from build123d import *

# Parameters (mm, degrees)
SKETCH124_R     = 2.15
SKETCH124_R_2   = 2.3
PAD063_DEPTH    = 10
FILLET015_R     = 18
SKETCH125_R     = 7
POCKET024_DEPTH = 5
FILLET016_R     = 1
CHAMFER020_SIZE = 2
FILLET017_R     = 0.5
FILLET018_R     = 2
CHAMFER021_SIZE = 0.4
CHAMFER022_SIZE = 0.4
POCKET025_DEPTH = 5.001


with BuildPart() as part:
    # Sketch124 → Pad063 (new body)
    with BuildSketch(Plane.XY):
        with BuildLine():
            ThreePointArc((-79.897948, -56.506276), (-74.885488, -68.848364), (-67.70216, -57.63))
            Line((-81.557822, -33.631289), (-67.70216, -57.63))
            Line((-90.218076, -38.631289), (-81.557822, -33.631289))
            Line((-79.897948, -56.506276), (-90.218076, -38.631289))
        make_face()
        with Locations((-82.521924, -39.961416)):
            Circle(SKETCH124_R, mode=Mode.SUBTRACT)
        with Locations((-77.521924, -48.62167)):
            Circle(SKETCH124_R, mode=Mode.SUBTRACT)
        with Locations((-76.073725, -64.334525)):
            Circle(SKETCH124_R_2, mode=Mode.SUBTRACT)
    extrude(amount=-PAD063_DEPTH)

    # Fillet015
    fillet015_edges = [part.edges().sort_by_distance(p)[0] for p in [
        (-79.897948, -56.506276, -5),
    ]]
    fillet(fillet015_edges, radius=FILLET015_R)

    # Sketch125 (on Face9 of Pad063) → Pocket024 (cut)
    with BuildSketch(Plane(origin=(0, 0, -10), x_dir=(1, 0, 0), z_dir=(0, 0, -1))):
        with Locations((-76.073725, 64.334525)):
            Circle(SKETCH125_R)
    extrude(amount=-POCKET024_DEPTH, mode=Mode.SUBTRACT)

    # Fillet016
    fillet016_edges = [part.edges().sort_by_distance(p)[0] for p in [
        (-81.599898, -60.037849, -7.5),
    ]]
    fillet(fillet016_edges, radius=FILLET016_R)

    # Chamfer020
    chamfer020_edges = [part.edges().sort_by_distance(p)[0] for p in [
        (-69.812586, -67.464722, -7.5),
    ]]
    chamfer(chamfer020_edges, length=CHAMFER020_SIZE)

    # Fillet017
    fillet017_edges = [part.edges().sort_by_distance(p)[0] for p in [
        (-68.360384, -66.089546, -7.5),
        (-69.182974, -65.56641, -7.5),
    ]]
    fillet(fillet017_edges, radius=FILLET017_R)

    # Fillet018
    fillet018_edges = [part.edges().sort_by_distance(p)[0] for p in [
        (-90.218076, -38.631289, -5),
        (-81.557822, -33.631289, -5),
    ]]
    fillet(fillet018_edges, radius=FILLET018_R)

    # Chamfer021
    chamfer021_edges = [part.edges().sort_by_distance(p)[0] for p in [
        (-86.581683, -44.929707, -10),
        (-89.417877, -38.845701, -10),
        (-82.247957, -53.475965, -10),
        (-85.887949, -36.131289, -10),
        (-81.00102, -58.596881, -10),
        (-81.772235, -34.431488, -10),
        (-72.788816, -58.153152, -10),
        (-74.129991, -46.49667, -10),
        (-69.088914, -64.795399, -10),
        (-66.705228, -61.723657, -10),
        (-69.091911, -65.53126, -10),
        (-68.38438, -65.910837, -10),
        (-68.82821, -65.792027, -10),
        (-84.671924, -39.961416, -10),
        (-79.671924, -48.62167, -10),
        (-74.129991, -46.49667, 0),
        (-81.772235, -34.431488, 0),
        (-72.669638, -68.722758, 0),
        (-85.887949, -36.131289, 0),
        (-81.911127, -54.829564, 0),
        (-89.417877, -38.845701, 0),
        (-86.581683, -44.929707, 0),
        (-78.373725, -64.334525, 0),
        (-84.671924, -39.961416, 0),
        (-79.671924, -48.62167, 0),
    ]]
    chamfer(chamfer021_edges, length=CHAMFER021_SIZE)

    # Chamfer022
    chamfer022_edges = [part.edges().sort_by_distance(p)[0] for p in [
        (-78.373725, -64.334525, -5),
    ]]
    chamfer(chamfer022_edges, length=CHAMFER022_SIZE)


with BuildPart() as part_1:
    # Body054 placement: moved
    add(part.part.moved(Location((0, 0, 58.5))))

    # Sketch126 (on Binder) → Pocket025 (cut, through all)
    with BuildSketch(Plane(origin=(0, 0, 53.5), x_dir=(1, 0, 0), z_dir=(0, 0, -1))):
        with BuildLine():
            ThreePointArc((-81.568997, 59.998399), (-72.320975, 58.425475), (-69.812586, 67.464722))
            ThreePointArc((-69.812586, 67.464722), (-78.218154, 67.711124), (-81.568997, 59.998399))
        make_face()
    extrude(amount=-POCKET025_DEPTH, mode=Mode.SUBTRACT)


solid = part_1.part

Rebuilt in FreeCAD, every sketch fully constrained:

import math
import FreeCAD as App
import Part
import Sketcher
Q = App.Units.Quantity


def edges_at(feature, points):
    """Names of the edges that pass closest to the given points."""
    edges = feature.Shape.Edges
    near = lambda p: min(range(len(edges)), key=lambda i: edges[i].distToShape(Part.Vertex(*p))[0])
    return sorted({f"Edge{near(p) + 1}" for p in points})

doc = App.newDocument("Part")
body = doc.addObject("PartDesign::Body", "Body")

# Sketch on XY plane
sketch1 = body.newObject("Sketcher::SketchObject", "Sketch")
sketch1.AttachmentSupport = (doc.getObject("XY_Plane"), [""])
sketch1.MapMode = "FlatFace"
sketch1.addGeometry([
    Part.ArcOfCircle(Part.Circle(App.Vector(-74.2, -61.4, 0), App.Vector(0, 0, 1), 7.5), math.radians(139), math.radians(390)),  # 0
    Part.LineSegment(App.Vector(-67.7, -57.6, 0), App.Vector(-81.6, -33.6, 0)),  # 1
    Part.LineSegment(App.Vector(-81.6, -33.6, 0), App.Vector(-90.2, -38.6, 0)),  # 2
    Part.LineSegment(App.Vector(-90.2, -38.6, 0), App.Vector(-79.9, -56.5, 0)),  # 3
    Part.Circle(App.Vector(-76.1, -64.3, 0), App.Vector(0, 0, 1), 2.3),  # 4
    Part.Circle(App.Vector(-82.5, -40, 0), App.Vector(0, 0, 1), 2.1),  # 5
    Part.Circle(App.Vector(-77.5, -48.6, 0), App.Vector(0, 0, 1), 2.1),  # 6
], False)
sketch1.addConstraint([
    Sketcher.Constraint("Tangent", 0, 2, 1, 1),
    Sketcher.Constraint("Coincident", 1, 2, 2, 1),
    Sketcher.Constraint("Coincident", 2, 2, 3, 1),
    Sketcher.Constraint("Coincident", 3, 2, 0, 1),
    Sketcher.Constraint("Equal", 5, 6),
    Sketcher.Constraint("Perpendicular", 1, 2),
    Sketcher.Constraint("Perpendicular", 2, 3),
    Sketcher.Constraint("Diameter", 4, 4.6),
    Sketcher.Constraint("Diameter", 5, 4.3),
    Sketcher.Constraint("Radius", 0, 7.5),
    Sketcher.Constraint("Angle", 1, Q("120 deg")),
    Sketcher.Constraint("Distance", 2, 10.0),
    Sketcher.Constraint("DistanceX", 5, 3, 6, 3, 5.0),
    Sketcher.Constraint("DistanceY", 0, 3, -1, 1, 61.38),
    Sketcher.Constraint("DistanceX", 5, 3, 4, 3, 6.448199),
    Sketcher.Constraint("DistanceX", 5, 3, 1, 2, 0.964102),
    Sketcher.Constraint("DistanceX", 0, 3, -1, 1, 74.19735),
    Sketcher.Constraint("DistanceY", 6, 3, -1, 1, 48.62167),
    Sketcher.Constraint("DistanceX", 1, 2, -1, 1, 81.557822),
    Sketcher.Constraint("DistanceY", 4, 3, 5, 3, 24.373109),
    Sketcher.Constraint("DistanceY", 4, 3, 3, 2, 7.828249),
])
pad1 = body.newObject("PartDesign::Pad", "Pad")
pad1.Profile = sketch1
pad1.Length = 10
pad1.Reversed = True
doc.recompute()

fillet = body.newObject("PartDesign::Fillet", "Fillet")
fillet.Base = (pad1, edges_at(pad1, [(-79.898, -56.506, -5)]))
fillet.Radius = 18

# Sketch on XY plane
sketch2 = body.newObject("Sketcher::SketchObject", "Sketch001")
sketch2.AttachmentSupport = (doc.getObject("XY_Plane"), [""])
sketch2.MapMode = "FlatFace"
sketch2.AttachmentOffset = App.Placement(App.Vector(0, 0, -10), App.Rotation())
sketch2.addGeometry(Part.Circle(App.Vector(-76, -64, 0), App.Vector(0, 0, 1), 7), False)
sketch2.addConstraint([
    Sketcher.Constraint("Diameter", 0, 14.0),
    Sketcher.Constraint("DistanceX", 0, 3, -1, 1, 76.073725),
    Sketcher.Constraint("DistanceY", 0, 3, -1, 1, 64.334525),
])
pocket1 = body.newObject("PartDesign::Pocket", "Pocket")
pocket1.Profile = sketch2
pocket1.Length = 5
pocket1.Reversed = True
doc.recompute()

fillet2 = body.newObject("PartDesign::Fillet", "Fillet001")
fillet2.Base = (pocket1, edges_at(pocket1, [(-81.6, -60.038, -7.5)]))
fillet2.Radius = 1
doc.recompute()

chamfer = body.newObject("PartDesign::Chamfer", "Chamfer")
chamfer.Base = (fillet2, edges_at(fillet2, [(-69.813, -67.465, -7.5)]))
chamfer.Size = 2
doc.recompute()

fillet3 = body.newObject("PartDesign::Fillet", "Fillet002")
fillet3.Base = (chamfer, edges_at(chamfer, [(-68.36, -66.09, -7.5), (-69.183, -65.566, -7.5)]))
fillet3.Radius = 0.5
doc.recompute()

fillet4 = body.newObject("PartDesign::Fillet", "Fillet003")
fillet4.Base = (fillet3, edges_at(fillet3, [(-90.218, -38.631, -5), (-81.558, -33.631, -5)]))
fillet4.Radius = 2
doc.recompute()

chamfer2 = body.newObject("PartDesign::Chamfer", "Chamfer001")
chamfer2.Base = (fillet4, edges_at(fillet4, [
    (-86.582, -44.93, -10),
    (-89.418, -38.846, -10),
    (-82.248, -53.476, -10),
    (-85.888, -36.131, -10),
    (-81.001, -58.597, -10),
    (-81.772, -34.431, -10),
    (-72.389, -58.383, -10),
    (-74.13, -46.497, -10),
    (-72.389, -58.383, -10),
    (-66.705, -61.724, -10),
    (-69.092, -65.531, -10),
    (-68.384, -65.911, -10),
    (-68.828, -65.792, -10),
    (-84.672, -39.961, -10),
    (-79.672, -48.622, -10),
    (-74.13, -46.497, 0),
    (-81.772, -34.431, 0),
    (-72.67, -68.723, 0),
    (-85.888, -36.131, 0),
    (-81.911, -54.83, 0),
    (-89.418, -38.846, 0),
    (-86.582, -44.93, 0),
    (-78.374, -64.335, 0),
    (-84.672, -39.961, 0),
    (-79.672, -48.622, 0),
]))
chamfer2.Size = 0.4
doc.recompute()

chamfer3 = body.newObject("PartDesign::Chamfer", "Chamfer002")
chamfer3.Base = (chamfer2, edges_at(chamfer2, [(-78.374, -64.335, -5)]))
chamfer3.Size = 0.4
body2 = doc.addObject("PartDesign::Body", "Body001")
doc.recompute()

body.Placement = App.Placement(App.Vector(0, 0, 58.5), App.Rotation(App.Vector(0, 0, 1), 0))
boolean = body2.newObject("PartDesign::Boolean", "Boolean")
boolean.Type = "Fuse"
boolean.addObjects([body])

# Sketch on XY plane
sketch3 = body2.newObject("Sketcher::SketchObject", "Sketch002")
sketch3.AttachmentSupport = (doc.getObject("XY_Plane001"), [""])
sketch3.MapMode = "FlatFace"
sketch3.AttachmentOffset = App.Placement(App.Vector(0, 0, 53.5), App.Rotation())
sketch3.addGeometry([
    Part.ArcOfCircle(Part.Circle(App.Vector(-76, -64, 0), App.Vector(0, 0, 1), 7), math.radians(-27), math.radians(142)),
    Part.ArcOfCircle(Part.Circle(App.Vector(-74, -61, 0), App.Vector(0, 0, 1), 8), math.radians(169), math.radians(306)),
], False)
sketch3.addConstraint([
    Sketcher.Constraint("Coincident", 0, 1, 1, 2),
    Sketcher.Constraint("Coincident", 1, 1, 0, 2),
    Sketcher.Constraint("Radius", 0, 7.0),
    Sketcher.Constraint("Radius", 1, 7.5),
    Sketcher.Constraint("DistanceY", 1, 3, -1, 1, 61.38),
    Sketcher.Constraint("DistanceY", 1, 1, -1, 1, 59.998399),
    Sketcher.Constraint("DistanceX", 1, 3, -1, 1, 74.19735),
    Sketcher.Constraint("DistanceY", 0, 1, -1, 1, 67.464722),
])
pocket2 = body2.newObject("PartDesign::Pocket", "Pocket001")
pocket2.Profile = sketch3
pocket2.Type = "ThroughAll"
pocket2.Reversed = True

doc.recompute()
